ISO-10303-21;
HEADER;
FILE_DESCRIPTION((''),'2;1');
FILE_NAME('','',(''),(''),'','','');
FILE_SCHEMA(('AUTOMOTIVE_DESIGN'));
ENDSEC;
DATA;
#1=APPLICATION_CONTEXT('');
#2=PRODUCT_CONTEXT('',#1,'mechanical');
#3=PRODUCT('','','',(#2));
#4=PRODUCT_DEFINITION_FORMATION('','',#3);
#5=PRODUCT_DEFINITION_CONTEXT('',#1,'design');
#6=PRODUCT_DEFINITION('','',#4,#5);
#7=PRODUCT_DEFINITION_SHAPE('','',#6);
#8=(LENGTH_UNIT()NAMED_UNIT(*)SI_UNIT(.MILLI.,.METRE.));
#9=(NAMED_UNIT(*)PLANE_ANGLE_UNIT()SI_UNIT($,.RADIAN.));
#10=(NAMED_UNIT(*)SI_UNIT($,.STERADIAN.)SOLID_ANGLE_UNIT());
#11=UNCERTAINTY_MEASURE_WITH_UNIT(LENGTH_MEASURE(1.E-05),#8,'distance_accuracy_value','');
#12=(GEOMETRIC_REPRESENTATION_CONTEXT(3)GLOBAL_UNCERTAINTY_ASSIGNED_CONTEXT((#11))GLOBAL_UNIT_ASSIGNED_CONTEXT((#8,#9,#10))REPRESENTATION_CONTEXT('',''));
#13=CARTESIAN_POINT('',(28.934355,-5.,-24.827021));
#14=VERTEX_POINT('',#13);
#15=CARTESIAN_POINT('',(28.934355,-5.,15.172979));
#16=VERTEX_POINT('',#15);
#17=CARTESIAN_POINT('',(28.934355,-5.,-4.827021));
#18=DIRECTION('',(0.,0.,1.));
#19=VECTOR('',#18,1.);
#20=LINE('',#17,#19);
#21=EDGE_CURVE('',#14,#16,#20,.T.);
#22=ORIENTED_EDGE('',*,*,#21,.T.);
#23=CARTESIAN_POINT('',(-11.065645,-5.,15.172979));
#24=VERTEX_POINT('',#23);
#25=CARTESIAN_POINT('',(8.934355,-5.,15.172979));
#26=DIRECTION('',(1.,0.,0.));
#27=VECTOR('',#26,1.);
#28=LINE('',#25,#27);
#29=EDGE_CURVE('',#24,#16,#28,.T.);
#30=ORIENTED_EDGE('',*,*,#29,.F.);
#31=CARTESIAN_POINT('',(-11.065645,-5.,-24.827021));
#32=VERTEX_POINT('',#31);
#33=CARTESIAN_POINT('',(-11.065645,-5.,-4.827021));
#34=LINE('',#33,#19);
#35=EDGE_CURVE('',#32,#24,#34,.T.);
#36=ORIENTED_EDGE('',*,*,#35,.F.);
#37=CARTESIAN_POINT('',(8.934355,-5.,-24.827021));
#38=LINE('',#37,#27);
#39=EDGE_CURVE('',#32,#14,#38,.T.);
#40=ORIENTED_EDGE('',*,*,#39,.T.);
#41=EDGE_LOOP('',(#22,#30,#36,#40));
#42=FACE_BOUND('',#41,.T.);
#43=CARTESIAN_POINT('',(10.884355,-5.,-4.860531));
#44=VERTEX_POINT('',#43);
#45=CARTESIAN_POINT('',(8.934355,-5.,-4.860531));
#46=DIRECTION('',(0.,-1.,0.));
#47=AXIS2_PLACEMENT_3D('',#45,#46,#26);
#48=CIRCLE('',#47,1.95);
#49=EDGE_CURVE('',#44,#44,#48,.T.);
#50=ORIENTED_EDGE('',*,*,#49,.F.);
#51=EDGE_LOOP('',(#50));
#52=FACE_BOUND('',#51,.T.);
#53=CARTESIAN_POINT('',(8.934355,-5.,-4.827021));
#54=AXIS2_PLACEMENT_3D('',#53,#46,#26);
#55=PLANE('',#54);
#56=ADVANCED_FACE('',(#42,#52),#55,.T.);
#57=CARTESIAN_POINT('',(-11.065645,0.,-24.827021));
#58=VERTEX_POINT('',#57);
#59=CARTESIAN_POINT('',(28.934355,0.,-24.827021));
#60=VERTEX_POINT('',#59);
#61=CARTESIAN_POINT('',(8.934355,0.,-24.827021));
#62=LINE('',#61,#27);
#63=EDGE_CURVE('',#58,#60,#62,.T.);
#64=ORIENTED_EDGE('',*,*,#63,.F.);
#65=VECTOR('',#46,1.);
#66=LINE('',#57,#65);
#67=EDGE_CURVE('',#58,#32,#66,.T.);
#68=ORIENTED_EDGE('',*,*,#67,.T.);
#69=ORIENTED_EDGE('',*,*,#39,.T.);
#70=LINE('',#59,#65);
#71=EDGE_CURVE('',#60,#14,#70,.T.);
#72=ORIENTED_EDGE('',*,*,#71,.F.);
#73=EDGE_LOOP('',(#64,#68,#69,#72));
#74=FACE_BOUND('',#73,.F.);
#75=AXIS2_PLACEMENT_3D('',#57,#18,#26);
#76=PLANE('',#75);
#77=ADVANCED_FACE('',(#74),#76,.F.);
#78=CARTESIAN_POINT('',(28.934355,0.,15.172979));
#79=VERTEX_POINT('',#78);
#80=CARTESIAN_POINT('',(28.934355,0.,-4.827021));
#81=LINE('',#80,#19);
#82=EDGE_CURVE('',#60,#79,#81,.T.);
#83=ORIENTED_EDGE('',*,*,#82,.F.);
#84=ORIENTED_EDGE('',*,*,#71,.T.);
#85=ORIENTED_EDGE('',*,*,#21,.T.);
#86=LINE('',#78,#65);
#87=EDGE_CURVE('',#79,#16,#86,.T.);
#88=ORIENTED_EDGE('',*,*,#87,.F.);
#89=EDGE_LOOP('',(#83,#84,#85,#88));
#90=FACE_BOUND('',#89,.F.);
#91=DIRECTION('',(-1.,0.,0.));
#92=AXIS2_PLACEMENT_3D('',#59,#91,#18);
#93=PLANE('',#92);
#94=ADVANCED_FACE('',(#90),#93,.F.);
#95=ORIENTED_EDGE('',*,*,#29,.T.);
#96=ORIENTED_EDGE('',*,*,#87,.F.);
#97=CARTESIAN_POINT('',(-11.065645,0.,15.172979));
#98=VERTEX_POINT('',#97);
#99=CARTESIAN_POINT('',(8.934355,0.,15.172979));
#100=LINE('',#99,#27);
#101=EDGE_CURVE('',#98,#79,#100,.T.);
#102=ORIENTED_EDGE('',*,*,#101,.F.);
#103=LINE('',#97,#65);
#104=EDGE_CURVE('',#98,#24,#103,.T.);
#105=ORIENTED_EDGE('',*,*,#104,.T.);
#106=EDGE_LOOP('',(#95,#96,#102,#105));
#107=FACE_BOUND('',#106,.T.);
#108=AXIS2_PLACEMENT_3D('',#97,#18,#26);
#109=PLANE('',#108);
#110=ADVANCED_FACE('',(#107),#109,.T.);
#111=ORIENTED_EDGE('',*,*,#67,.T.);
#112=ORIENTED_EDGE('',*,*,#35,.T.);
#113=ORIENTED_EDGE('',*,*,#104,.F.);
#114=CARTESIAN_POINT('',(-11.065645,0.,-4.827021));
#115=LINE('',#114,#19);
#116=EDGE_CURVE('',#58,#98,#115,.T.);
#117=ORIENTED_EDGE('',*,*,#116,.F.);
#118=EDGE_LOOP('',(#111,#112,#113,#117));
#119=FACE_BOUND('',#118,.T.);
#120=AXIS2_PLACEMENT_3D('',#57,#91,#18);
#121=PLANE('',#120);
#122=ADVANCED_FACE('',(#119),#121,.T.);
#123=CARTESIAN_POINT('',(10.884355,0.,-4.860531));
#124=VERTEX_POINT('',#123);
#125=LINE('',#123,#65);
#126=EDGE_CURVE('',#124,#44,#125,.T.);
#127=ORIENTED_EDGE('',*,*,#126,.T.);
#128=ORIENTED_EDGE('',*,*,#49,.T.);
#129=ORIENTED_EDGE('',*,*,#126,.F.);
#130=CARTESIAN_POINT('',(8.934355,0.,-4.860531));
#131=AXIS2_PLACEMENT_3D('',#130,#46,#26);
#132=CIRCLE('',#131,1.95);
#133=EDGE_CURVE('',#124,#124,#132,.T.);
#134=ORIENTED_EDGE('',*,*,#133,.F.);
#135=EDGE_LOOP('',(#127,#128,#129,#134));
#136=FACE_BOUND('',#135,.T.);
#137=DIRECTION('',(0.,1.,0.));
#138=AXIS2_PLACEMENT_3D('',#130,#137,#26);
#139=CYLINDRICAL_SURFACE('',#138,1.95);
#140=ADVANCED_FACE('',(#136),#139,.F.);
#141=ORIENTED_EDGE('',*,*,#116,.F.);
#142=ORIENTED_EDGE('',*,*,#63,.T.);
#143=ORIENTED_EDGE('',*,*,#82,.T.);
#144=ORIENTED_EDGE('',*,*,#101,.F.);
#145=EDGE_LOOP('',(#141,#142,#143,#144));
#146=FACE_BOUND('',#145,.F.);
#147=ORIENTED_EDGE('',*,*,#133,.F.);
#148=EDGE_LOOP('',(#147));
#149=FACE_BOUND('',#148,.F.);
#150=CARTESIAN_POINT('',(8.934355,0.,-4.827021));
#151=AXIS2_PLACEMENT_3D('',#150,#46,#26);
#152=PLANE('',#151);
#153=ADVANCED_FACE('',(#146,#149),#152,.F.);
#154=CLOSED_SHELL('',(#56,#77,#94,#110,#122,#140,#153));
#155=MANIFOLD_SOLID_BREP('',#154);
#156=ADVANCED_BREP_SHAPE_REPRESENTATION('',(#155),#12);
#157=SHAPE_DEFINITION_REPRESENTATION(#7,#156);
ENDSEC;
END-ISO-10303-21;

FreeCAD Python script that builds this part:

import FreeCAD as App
import Part
import Sketcher
Q = App.Units.Quantity

doc = App.newDocument("Part")
body = doc.addObject("PartDesign::Body", "Body")

# Sketch on XY plane
sketch1 = body.newObject("Sketcher::SketchObject", "Sketch")
sketch1.AttachmentSupport = (doc.getObject("XY_Plane"), [""])
sketch1.MapMode = "FlatFace"
sketch1.addGeometry([
    Part.LineSegment(App.Vector(-11.065645, 15.172979, 0), App.Vector(-11.065645, -24.827021, 0)),  # 0
    Part.LineSegment(App.Vector(-11.065645, -24.827021, 0), App.Vector(28.934355, -24.827021, 0)),  # 1
    Part.LineSegment(App.Vector(28.934355, -24.827021, 0), App.Vector(28.934355, 15.172979, 0)),  # 2
    Part.LineSegment(App.Vector(28.934355, 15.172979, 0), App.Vector(-11.065645, 15.172979, 0)),  # 3
    Part.Circle(App.Vector(8.934355, -4.860531, 0), App.Vector(0, 0, 1), 1.95),  # 4
], False)
sketch1.addConstraint([
    Sketcher.Constraint("Coincident", 0, 2, 1, 1),
    Sketcher.Constraint("Coincident", 1, 2, 2, 1),
    Sketcher.Constraint("Coincident", 2, 2, 3, 1),
    Sketcher.Constraint("Coincident", 3, 2, 0, 1),
    Sketcher.Constraint("Vertical", 0),
    Sketcher.Constraint("Horizontal", 1),
    Sketcher.Constraint("Vertical", 2),
    Sketcher.Constraint("Horizontal", 3),
    Sketcher.Constraint("Equal", 3, 0),
    Sketcher.Constraint("Diameter", 4, Q("3.9 mm")),
    Sketcher.Constraint("DistanceX", 1, 1, 1, 2, Q("40 mm")),
    Sketcher.Constraint("DistanceX", 0, 2, 4, 3, Q("20 mm")),
    Sketcher.Constraint("DistanceY", 4, 3, -1, 1, Q("4.860531 mm")),
    Sketcher.Constraint("DistanceY", 0, 2, -1, 1, Q("24.827021 mm")),
    Sketcher.Constraint("DistanceX", -1, 1, 4, 3, Q("8.934355 mm")),
])
pad1 = body.newObject("PartDesign::Pad", "Pad")
pad1.Profile = sketch1
pad1.Length = 5
body2 = doc.addObject("PartDesign::Body", "Body001")
doc.recompute()

body.Placement = App.Placement(App.Vector(0, 0, 0), App.Rotation(App.Vector(1, 0, 0), 90))
boolean = body2.newObject("PartDesign::Boolean", "Boolean")
boolean.Type = "Fuse"
boolean.addObjects([body])

doc.recompute()
